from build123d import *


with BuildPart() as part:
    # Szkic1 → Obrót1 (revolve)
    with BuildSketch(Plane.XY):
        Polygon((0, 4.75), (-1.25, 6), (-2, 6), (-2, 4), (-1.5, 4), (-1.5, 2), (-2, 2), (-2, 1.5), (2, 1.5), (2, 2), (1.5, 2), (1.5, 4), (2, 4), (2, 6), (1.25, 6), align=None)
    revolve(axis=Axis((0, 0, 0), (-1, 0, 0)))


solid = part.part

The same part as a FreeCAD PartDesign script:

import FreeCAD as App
import Part
import Sketcher

V = App.Vector


def add_polygon(sketch, points):
    """Adds a closed chain of lines whose ends are joined by coincident constraints."""
    first, n = sketch.GeometryCount, len(points)
    for a, b in zip(points, points[1:] + points[:1]):
        sketch.addGeometry(Part.LineSegment(App.Vector(*a, 0), App.Vector(*b, 0)), False)
    for i in range(n):
        sketch.addConstraint(Sketcher.Constraint("Coincident", first + i, 2, first + (i + 1) % n, 1))

doc = App.newDocument("Part")
body = doc.addObject("PartDesign::Body", "Body")

sketch1 = body.newObject("Sketcher::SketchObject", "Sketch")
sketch1.AttachmentSupport = (doc.getObject("XY_Plane"), [""])
sketch1.MapMode = "FlatFace"
add_polygon(sketch1, [(0, 4.8), (-1.2, 6), (-2, 6), (-2, 4), (-1.5, 4), (-1.5, 2), (-2, 2), (-2, 1.5), (2, 1.5), (2, 2), (1.5, 2), (1.5, 4), (2, 4), (2, 6), (1.2, 6)])
sketch1.addConstraint([
    Sketcher.Constraint("Horizontal", 1),
    Sketcher.Constraint("Vertical", 2),
    Sketcher.Constraint("Horizontal", 3),
    Sketcher.Constraint("Vertical", 4),
    Sketcher.Constraint("Horizontal", 5),
    Sketcher.Constraint("Vertical", 6),
    Sketcher.Constraint("Horizontal", 7),
    Sketcher.Constraint("Vertical", 8),
    Sketcher.Constraint("Horizontal", 9),
    Sketcher.Constraint("Vertical", 10),
    Sketcher.Constraint("Horizontal", 11),
    Sketcher.Constraint("Vertical", 12),
    Sketcher.Constraint("Horizontal", 13),
    Sketcher.Constraint("Symmetric", 5, 2, 8, 2, -2),
    Sketcher.Constraint("Symmetric", 3, 2, 10, 2, -2),
    Sketcher.Constraint("Symmetric", 1, 2, 12, 2, -2),
    Sketcher.Constraint("PointOnObject", 14, 2, -2),
    Sketcher.Constraint("Perpendicular", 0, 14),
    Sketcher.Constraint("Vertical", 2, 2, 5, 2),
    Sketcher.Constraint("Equal", 1, 13),
    Sketcher.Constraint("Equal", 2, 4),
    Sketcher.Constraint("Equal", 11, 6),
    Sketcher.Constraint("DistanceX", 7, 1, 7, 2, 4.0),
    Sketcher.Constraint("DistanceY", 2, 2, 2, 1, 2.0),
    Sketcher.Constraint("DistanceX", 3, 1, 3, 2, 0.5),
    Sketcher.Constraint("DistanceY", -1, 1, 0, 2, 6.0),
    Sketcher.Constraint("DistanceX", 1, 2, 1, 1, 0.75),
])
revolution = body.newObject("PartDesign::Revolution", "Revolution")
revolution.Profile = sketch1
revolution.ReferenceAxis = (sketch1, ["H_Axis"])
revolution.Angle = 360

doc.recompute()
